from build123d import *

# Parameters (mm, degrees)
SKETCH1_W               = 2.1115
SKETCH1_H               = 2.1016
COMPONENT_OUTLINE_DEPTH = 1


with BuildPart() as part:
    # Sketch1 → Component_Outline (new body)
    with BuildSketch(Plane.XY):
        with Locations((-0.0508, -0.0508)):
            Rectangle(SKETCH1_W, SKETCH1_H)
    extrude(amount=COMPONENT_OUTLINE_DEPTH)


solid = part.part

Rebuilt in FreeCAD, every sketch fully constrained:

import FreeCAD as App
import Part
import Sketcher
Q = App.Units.Quantity


def add_polygon(sketch, points):
    """Adds a closed chain of lines whose ends are joined by coincident constraints."""
    first, n = sketch.GeometryCount, len(points)
    for a, b in zip(points, points[1:] + points[:1]):
        sketch.addGeometry(Part.LineSegment(App.Vector(*a, 0), App.Vector(*b, 0)), False)
    for i in range(n):
        sketch.addConstraint(Sketcher.Constraint("Coincident", first + i, 2, first + (i + 1) % n, 1))

doc = App.newDocument("Part")
body = doc.addObject("PartDesign::Body", "Body")

# Sketch on XY plane
sketch1 = doc.addObject("Sketcher::SketchObject", "Sketch")
body.addObject(sketch1)
sketch1.AttachmentSupport = (doc.XY_Plane, [""])
sketch1.MapMode = "FlatFace"
add_polygon(sketch1, [(-1.1, 1), (-1.1, -1.1), (1, -1.1), (1, 1)])  # lines 0-3
sketch1.addConstraint(Sketcher.Constraint("Vertical", 0))
sketch1.addConstraint(Sketcher.Constraint("Horizontal", 1))
sketch1.addConstraint(Sketcher.Constraint("Vertical", 2))
sketch1.addConstraint(Sketcher.Constraint("Horizontal", 3))
sketch1.addConstraint(Sketcher.Constraint("DistanceY", -1, 1, 2, 2, Q("1 mm")))
sketch1.addConstraint(Sketcher.Constraint("DistanceX", 1, 1, 1, 2, Q("2.1115 mm")))
sketch1.addConstraint(Sketcher.Constraint("DistanceY", 0, 2, 0, 1, Q("2.1016 mm")))
sketch1.addConstraint(Sketcher.Constraint("DistanceX", 0, 2, -1, 1, Q("1.10655 mm")))
pad1 = doc.addObject("PartDesign::Pad", "Pad")
body.addObject(pad1)
pad1.Profile = sketch1
pad1.Length = 1

doc.recompute()
